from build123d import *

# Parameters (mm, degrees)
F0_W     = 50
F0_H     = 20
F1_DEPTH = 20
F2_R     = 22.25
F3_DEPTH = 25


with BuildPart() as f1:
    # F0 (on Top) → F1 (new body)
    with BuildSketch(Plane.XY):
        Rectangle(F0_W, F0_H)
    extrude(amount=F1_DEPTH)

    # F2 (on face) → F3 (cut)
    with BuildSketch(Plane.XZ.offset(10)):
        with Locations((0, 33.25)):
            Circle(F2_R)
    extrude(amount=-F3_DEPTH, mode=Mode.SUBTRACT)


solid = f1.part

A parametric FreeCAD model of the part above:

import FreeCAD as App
import Part
import Sketcher

V = App.Vector

doc = App.newDocument("Part")
body = doc.addObject("PartDesign::Body", "Body")

sketch1 = body.newObject("Sketcher::SketchObject", "Sketch")
sketch1.AttachmentSupport = (doc.getObject("XY_Plane"), [""])
sketch1.MapMode = "FlatFace"
sketch1.addGeometry(Part.LineSegment(V(-25, 10, 0), V(-25, -10, 0)), False)
sketch1.addGeometry(Part.LineSegment(V(-25, -10, 0), V(25, -10, 0)), False)
sketch1.addGeometry(Part.LineSegment(V(25, -10, 0), V(25, 10, 0)), False)
sketch1.addGeometry(Part.LineSegment(V(25, 10, 0), V(-25, 10, 0)), False)
sketch1.addConstraint(Sketcher.Constraint("Coincident", 0, 2, 1, 1))
sketch1.addConstraint(Sketcher.Constraint("Coincident", 1, 2, 2, 1))
sketch1.addConstraint(Sketcher.Constraint("Coincident", 2, 2, 3, 1))
sketch1.addConstraint(Sketcher.Constraint("Coincident", 3, 2, 0, 1))
sketch1.addConstraint(Sketcher.Constraint("Vertical", 0))
sketch1.addConstraint(Sketcher.Constraint("Horizontal", 1))
sketch1.addConstraint(Sketcher.Constraint("Vertical", 2))
sketch1.addConstraint(Sketcher.Constraint("Horizontal", 3))
sketch1.addConstraint(Sketcher.Constraint("Symmetric", 0, 2, 2, 2, -1, 1))
sketch1.addConstraint(Sketcher.Constraint("DistanceX", 1, 1, 1, 2, 50.0))
sketch1.addConstraint(Sketcher.Constraint("DistanceY", 0, 2, 0, 1, 20.0))
pad1 = body.newObject("PartDesign::Pad", "Pad")
pad1.Profile = sketch1
pad1.Length = 20

sketch2 = body.newObject("Sketcher::SketchObject", "Sketch001")
sketch2.AttachmentSupport = (doc.getObject("XZ_Plane"), [""])
sketch2.MapMode = "FlatFace"
sketch2.AttachmentOffset = App.Placement(V(0, 0, 10), App.Rotation())
sketch2.addGeometry(Part.Circle(V(0, 33, 0), V(0, 0, 1), 22), False)
sketch2.addConstraint(Sketcher.Constraint("PointOnObject", 0, 3, -2))
sketch2.addConstraint(Sketcher.Constraint("Diameter", 0, 44.5))
sketch2.addConstraint(Sketcher.Constraint("DistanceY", -1, 1, 0, 3, 33.25))
pocket1 = body.newObject("PartDesign::Pocket", "Pocket")
pocket1.Profile = sketch2
pocket1.Length = 25

doc.recompute()
